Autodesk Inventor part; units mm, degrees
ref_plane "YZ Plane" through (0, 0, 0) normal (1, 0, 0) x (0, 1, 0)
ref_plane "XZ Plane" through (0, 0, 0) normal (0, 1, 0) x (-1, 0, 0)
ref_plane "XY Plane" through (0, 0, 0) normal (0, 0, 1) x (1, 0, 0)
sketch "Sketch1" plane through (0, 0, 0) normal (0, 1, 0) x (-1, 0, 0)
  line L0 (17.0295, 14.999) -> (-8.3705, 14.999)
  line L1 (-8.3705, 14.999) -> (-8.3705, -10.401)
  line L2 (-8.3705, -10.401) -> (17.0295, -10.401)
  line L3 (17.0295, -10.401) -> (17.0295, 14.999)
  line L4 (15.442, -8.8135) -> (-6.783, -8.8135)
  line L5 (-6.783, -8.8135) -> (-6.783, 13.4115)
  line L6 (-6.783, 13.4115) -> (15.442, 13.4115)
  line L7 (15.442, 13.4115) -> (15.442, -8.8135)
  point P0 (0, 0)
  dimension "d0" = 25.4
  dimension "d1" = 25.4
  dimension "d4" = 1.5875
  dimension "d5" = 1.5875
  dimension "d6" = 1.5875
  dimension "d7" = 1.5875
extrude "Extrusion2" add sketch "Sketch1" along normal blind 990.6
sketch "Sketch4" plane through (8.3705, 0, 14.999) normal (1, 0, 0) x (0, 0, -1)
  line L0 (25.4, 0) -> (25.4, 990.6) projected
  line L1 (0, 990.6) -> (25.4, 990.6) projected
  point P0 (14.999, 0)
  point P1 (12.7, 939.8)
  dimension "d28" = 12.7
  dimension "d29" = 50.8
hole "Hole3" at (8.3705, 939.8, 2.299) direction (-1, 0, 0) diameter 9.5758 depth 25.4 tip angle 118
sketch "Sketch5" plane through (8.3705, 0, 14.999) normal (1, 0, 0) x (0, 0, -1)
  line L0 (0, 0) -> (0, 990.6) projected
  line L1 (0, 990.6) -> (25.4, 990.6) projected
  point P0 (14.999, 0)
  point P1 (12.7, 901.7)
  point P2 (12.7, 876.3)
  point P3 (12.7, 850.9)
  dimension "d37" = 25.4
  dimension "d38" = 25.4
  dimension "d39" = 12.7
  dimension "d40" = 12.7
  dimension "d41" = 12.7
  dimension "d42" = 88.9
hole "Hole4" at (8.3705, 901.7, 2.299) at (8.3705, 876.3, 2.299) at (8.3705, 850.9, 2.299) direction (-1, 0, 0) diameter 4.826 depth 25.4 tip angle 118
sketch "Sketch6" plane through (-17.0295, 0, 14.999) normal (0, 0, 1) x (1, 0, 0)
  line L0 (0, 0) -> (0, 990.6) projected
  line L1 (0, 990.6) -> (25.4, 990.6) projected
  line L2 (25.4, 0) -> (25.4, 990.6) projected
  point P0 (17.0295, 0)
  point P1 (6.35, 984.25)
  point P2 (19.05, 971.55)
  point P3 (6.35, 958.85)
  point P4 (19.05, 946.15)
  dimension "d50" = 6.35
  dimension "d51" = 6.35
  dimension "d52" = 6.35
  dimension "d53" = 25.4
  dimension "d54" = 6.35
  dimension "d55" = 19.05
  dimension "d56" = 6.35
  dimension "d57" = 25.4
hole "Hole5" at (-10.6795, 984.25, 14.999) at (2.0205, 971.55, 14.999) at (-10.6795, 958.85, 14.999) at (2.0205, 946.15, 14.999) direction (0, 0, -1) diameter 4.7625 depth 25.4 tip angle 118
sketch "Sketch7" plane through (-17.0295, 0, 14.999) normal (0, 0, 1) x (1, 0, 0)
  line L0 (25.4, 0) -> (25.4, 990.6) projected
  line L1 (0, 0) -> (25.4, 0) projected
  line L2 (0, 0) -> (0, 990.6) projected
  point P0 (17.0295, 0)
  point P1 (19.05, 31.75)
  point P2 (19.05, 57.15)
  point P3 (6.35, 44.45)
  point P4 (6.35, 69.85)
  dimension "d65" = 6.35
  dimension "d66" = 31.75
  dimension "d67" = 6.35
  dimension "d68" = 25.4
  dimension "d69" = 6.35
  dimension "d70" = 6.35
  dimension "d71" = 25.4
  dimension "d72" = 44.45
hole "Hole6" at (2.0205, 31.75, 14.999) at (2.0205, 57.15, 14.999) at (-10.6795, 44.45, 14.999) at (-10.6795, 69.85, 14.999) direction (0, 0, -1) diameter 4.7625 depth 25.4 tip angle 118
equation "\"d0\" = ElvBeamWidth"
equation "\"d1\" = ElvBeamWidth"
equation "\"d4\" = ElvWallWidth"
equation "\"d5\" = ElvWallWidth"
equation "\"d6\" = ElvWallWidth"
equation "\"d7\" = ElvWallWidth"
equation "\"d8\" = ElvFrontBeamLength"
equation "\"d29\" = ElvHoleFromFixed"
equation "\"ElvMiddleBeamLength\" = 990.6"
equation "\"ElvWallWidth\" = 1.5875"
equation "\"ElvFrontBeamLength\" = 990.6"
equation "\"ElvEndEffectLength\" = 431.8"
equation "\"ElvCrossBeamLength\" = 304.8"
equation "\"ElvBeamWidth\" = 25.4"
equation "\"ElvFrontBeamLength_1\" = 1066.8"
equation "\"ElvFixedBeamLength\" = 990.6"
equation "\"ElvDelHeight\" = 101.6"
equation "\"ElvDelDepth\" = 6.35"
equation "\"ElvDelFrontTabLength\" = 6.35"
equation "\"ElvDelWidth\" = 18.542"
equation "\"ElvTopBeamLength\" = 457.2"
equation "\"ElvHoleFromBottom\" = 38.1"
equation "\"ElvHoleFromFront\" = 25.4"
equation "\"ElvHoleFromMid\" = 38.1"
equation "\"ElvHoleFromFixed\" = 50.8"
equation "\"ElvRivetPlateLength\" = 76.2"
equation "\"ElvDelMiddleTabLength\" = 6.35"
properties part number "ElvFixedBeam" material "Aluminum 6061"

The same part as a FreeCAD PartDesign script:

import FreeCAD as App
import Part
import Sketcher

V = App.Vector
Q = App.Units.Quantity


def add_polygon(sketch, points):
    """Adds a closed chain of lines whose ends are joined by coincident constraints."""
    first, n = sketch.GeometryCount, len(points)
    for a, b in zip(points, points[1:] + points[:1]):
        sketch.addGeometry(Part.LineSegment(App.Vector(*a, 0), App.Vector(*b, 0)), False)
    for i in range(n):
        sketch.addConstraint(Sketcher.Constraint("Coincident", first + i, 2, first + (i + 1) % n, 1))

doc = App.newDocument("Part")
body = doc.addObject("PartDesign::Body", "Body")

# Sketch on XZ plane
sketch1 = body.newObject("Sketcher::SketchObject", "Sketch")
sketch1.AttachmentSupport = (doc.getObject("XZ_Plane"), [""])
sketch1.MapMode = "FlatFace"
add_polygon(sketch1, [(-17, -10), (-17, 15), (8, 15), (8, -10)])  # lines 0-3
add_polygon(sketch1, [(-15, 13), (-15, -9), (7, -9), (7, 13)])  # lines 4-7
sketch1.addConstraint(Sketcher.Constraint("Vertical", 0))
sketch1.addConstraint(Sketcher.Constraint("Horizontal", 1))
sketch1.addConstraint(Sketcher.Constraint("Vertical", 2))
sketch1.addConstraint(Sketcher.Constraint("Horizontal", 3))
sketch1.addConstraint(Sketcher.Constraint("Vertical", 4))
sketch1.addConstraint(Sketcher.Constraint("Horizontal", 5))
sketch1.addConstraint(Sketcher.Constraint("Vertical", 6))
sketch1.addConstraint(Sketcher.Constraint("Horizontal", 7))
sketch1.addConstraint(Sketcher.Constraint("Equal", 3, 0))
sketch1.addConstraint(Sketcher.Constraint("Equal", 7, 4))
sketch1.addConstraint(Sketcher.Constraint("DistanceX", 1, 1, 1, 2, Q("1 in")))
sketch1.addConstraint(Sketcher.Constraint("DistanceX", 3, 2, 4, 2, Q("0.0625 in")))
sketch1.addConstraint(Sketcher.Constraint("DistanceY", 3, 2, 4, 2, Q("0.0625 in")))
sketch1.addConstraint(Sketcher.Constraint("DistanceX", 5, 2, 2, 2, Q("0.0625 in")))
sketch1.addConstraint(Sketcher.Constraint("DistanceY", 4, 2, -1, 1, Q("0.347 in")))
sketch1.addConstraint(Sketcher.Constraint("DistanceX", 0, 2, -1, 1, 17.0295))
pad1 = body.newObject("PartDesign::Pad", "Pad")
pad1.Profile = sketch1
pad1.Length = Q("39 in")
pad1.Reversed = True

# Sketch on YZ plane
sketch2 = body.newObject("Sketcher::SketchObject", "Sketch001")
sketch2.AttachmentSupport = (doc.getObject("YZ_Plane"), [""])
sketch2.MapMode = "FlatFace"
sketch2.AttachmentOffset = App.Placement(V(0, 0, 8.3705), App.Rotation())
sketch2.addGeometry(Part.Circle(V(939.8, 2.3, 0), V(0, 0, 1), 4.8), False)
sketch2.addConstraint(Sketcher.Constraint("Diameter", 0, Q("0.377 in")))
sketch2.addConstraint(Sketcher.Constraint("DistanceX", -1, 1, 0, 3, Q("37 in")))
sketch2.addConstraint(Sketcher.Constraint("DistanceY", -1, 1, 0, 3, Q("0.0905 in")))
doc.recompute()
hole = body.newObject("PartDesign::Hole", "Hole")
hole.Profile = sketch2
hole.ThreadType = "None"
hole.Diameter = Q("0.377 in")
hole.DepthType = "Dimension"
hole.Depth = Q("1 in")
hole.DrillPoint = "Angled"
hole.DrillPointAngle = 118

# Sketch on YZ plane
sketch3 = body.newObject("Sketcher::SketchObject", "Sketch002")
sketch3.AttachmentSupport = (doc.getObject("YZ_Plane"), [""])
sketch3.MapMode = "FlatFace"
sketch3.AttachmentOffset = App.Placement(V(0, 0, 8.3705), App.Rotation())
sketch3.addGeometry(Part.Circle(V(901.7, 2.3, 0), V(0, 0, 1), 2.4), False)
sketch3.addGeometry(Part.Circle(V(876.3, 2.3, 0), V(0, 0, 1), 2.4), False)
sketch3.addGeometry(Part.Circle(V(850.9, 2.3, 0), V(0, 0, 1), 2.4), False)
sketch3.addConstraint(Sketcher.Constraint("Equal", 0, 1))
sketch3.addConstraint(Sketcher.Constraint("Equal", 1, 2))
sketch3.addConstraint(Sketcher.Constraint("Horizontal", 0, 3, 1, 3))
sketch3.addConstraint(Sketcher.Constraint("Horizontal", 1, 3, 2, 3))
sketch3.addConstraint(Sketcher.Constraint("Diameter", 0, Q("0.19 in")))
sketch3.addConstraint(Sketcher.Constraint("DistanceX", 1, 3, 0, 3, Q("1 in")))
sketch3.addConstraint(Sketcher.Constraint("DistanceX", 2, 3, 1, 3, Q("1 in")))
sketch3.addConstraint(Sketcher.Constraint("DistanceX", -1, 1, 0, 3, Q("35.5 in")))
sketch3.addConstraint(Sketcher.Constraint("DistanceY", -1, 1, 0, 3, Q("0.0905 in")))
doc.recompute()
hole2 = body.newObject("PartDesign::Hole", "Hole001")
hole2.Profile = sketch3
hole2.ThreadType = "None"
hole2.Diameter = Q("0.19 in")
hole2.DepthType = "Dimension"
hole2.Depth = Q("1 in")
hole2.DrillPoint = "Angled"
hole2.DrillPointAngle = 118

# Sketch on XY plane
sketch4 = body.newObject("Sketcher::SketchObject", "Sketch003")
sketch4.AttachmentSupport = (doc.getObject("XY_Plane"), [""])
sketch4.MapMode = "FlatFace"
sketch4.AttachmentOffset = App.Placement(V(0, 0, 0.5905118 * 25.4), App.Rotation())
sketch4.addGeometry(Part.Circle(V(-10.7, 984.2, 0), V(0, 0, 1), 2.4), False)
sketch4.addGeometry(Part.Circle(V(2, 971.5, 0), V(0, 0, 1), 2.4), False)
sketch4.addGeometry(Part.Circle(V(-10.7, 958.9, 0), V(0, 0, 1), 2.4), False)
sketch4.addGeometry(Part.Circle(V(2, 946.1, 0), V(0, 0, 1), 2.4), False)
sketch4.addConstraint(Sketcher.Constraint("Equal", 0, 1))
sketch4.addConstraint(Sketcher.Constraint("Equal", 1, 2))
sketch4.addConstraint(Sketcher.Constraint("Equal", 2, 3))
sketch4.addConstraint(Sketcher.Constraint("Vertical", 0, 3, 2, 3))
sketch4.addConstraint(Sketcher.Constraint("Vertical", 1, 3, 3, 3))
sketch4.addConstraint(Sketcher.Constraint("Diameter", 0, Q("0.1875 in")))
sketch4.addConstraint(Sketcher.Constraint("DistanceY", 2, 3, 0, 3, Q("1 in")))
sketch4.addConstraint(Sketcher.Constraint("DistanceY", 3, 3, 1, 3, Q("1 in")))
sketch4.addConstraint(Sketcher.Constraint("DistanceX", 0, 3, 1, 3, Q("0.5 in")))
sketch4.addConstraint(Sketcher.Constraint("DistanceY", 1, 3, 0, 3, Q("0.5 in")))
sketch4.addConstraint(Sketcher.Constraint("DistanceY", -1, 1, 0, 3, Q("38.75 in")))
sketch4.addConstraint(Sketcher.Constraint("DistanceX", 0, 3, -1, 1, 10.6795))
doc.recompute()
hole3 = body.newObject("PartDesign::Hole", "Hole002")
hole3.Profile = sketch4
hole3.ThreadType = "None"
hole3.Diameter = Q("0.1875 in")
hole3.DepthType = "Dimension"
hole3.Depth = Q("1 in")
hole3.DrillPoint = "Angled"
hole3.DrillPointAngle = 118

# Sketch on XY plane
sketch5 = body.newObject("Sketcher::SketchObject", "Sketch004")
sketch5.AttachmentSupport = (doc.getObject("XY_Plane"), [""])
sketch5.MapMode = "FlatFace"
sketch5.AttachmentOffset = App.Placement(V(0, 0, 0.5905118 * 25.4), App.Rotation())
sketch5.addGeometry(Part.Circle(V(2, 31.8, 0), V(0, 0, 1), 2.4), False)
sketch5.addGeometry(Part.Circle(V(2, 57.1, 0), V(0, 0, 1), 2.4), False)
sketch5.addGeometry(Part.Circle(V(-10.7, 44.5, 0), V(0, 0, 1), 2.4), False)
sketch5.addGeometry(Part.Circle(V(-10.7, 69.8, 0), V(0, 0, 1), 2.4), False)
sketch5.addConstraint(Sketcher.Constraint("Equal", 0, 1))
sketch5.addConstraint(Sketcher.Constraint("Equal", 1, 2))
sketch5.addConstraint(Sketcher.Constraint("Equal", 2, 3))
sketch5.addConstraint(Sketcher.Constraint("Vertical", 0, 3, 1, 3))
sketch5.addConstraint(Sketcher.Constraint("Vertical", 2, 3, 3, 3))
sketch5.addConstraint(Sketcher.Constraint("Diameter", 0, Q("0.1875 in")))
sketch5.addConstraint(Sketcher.Constraint("DistanceY", 0, 3, 1, 3, Q("1 in")))
sketch5.addConstraint(Sketcher.Constraint("DistanceY", 2, 3, 3, 3, Q("1 in")))
sketch5.addConstraint(Sketcher.Constraint("DistanceX", 2, 3, 1, 3, Q("0.5 in")))
sketch5.addConstraint(Sketcher.Constraint("DistanceY", 2, 3, 1, 3, Q("0.5 in")))
sketch5.addConstraint(Sketcher.Constraint("DistanceY", -1, 1, 0, 3, Q("1.25 in")))
sketch5.addConstraint(Sketcher.Constraint("DistanceX", -1, 1, 0, 3, 2.0205))
doc.recompute()
hole4 = body.newObject("PartDesign::Hole", "Hole003")
hole4.Profile = sketch5
hole4.ThreadType = "None"
hole4.Diameter = Q("0.1875 in")
hole4.DepthType = "Dimension"
hole4.Depth = Q("1 in")
hole4.DrillPoint = "Angled"
hole4.DrillPointAngle = 118

doc.recompute()
